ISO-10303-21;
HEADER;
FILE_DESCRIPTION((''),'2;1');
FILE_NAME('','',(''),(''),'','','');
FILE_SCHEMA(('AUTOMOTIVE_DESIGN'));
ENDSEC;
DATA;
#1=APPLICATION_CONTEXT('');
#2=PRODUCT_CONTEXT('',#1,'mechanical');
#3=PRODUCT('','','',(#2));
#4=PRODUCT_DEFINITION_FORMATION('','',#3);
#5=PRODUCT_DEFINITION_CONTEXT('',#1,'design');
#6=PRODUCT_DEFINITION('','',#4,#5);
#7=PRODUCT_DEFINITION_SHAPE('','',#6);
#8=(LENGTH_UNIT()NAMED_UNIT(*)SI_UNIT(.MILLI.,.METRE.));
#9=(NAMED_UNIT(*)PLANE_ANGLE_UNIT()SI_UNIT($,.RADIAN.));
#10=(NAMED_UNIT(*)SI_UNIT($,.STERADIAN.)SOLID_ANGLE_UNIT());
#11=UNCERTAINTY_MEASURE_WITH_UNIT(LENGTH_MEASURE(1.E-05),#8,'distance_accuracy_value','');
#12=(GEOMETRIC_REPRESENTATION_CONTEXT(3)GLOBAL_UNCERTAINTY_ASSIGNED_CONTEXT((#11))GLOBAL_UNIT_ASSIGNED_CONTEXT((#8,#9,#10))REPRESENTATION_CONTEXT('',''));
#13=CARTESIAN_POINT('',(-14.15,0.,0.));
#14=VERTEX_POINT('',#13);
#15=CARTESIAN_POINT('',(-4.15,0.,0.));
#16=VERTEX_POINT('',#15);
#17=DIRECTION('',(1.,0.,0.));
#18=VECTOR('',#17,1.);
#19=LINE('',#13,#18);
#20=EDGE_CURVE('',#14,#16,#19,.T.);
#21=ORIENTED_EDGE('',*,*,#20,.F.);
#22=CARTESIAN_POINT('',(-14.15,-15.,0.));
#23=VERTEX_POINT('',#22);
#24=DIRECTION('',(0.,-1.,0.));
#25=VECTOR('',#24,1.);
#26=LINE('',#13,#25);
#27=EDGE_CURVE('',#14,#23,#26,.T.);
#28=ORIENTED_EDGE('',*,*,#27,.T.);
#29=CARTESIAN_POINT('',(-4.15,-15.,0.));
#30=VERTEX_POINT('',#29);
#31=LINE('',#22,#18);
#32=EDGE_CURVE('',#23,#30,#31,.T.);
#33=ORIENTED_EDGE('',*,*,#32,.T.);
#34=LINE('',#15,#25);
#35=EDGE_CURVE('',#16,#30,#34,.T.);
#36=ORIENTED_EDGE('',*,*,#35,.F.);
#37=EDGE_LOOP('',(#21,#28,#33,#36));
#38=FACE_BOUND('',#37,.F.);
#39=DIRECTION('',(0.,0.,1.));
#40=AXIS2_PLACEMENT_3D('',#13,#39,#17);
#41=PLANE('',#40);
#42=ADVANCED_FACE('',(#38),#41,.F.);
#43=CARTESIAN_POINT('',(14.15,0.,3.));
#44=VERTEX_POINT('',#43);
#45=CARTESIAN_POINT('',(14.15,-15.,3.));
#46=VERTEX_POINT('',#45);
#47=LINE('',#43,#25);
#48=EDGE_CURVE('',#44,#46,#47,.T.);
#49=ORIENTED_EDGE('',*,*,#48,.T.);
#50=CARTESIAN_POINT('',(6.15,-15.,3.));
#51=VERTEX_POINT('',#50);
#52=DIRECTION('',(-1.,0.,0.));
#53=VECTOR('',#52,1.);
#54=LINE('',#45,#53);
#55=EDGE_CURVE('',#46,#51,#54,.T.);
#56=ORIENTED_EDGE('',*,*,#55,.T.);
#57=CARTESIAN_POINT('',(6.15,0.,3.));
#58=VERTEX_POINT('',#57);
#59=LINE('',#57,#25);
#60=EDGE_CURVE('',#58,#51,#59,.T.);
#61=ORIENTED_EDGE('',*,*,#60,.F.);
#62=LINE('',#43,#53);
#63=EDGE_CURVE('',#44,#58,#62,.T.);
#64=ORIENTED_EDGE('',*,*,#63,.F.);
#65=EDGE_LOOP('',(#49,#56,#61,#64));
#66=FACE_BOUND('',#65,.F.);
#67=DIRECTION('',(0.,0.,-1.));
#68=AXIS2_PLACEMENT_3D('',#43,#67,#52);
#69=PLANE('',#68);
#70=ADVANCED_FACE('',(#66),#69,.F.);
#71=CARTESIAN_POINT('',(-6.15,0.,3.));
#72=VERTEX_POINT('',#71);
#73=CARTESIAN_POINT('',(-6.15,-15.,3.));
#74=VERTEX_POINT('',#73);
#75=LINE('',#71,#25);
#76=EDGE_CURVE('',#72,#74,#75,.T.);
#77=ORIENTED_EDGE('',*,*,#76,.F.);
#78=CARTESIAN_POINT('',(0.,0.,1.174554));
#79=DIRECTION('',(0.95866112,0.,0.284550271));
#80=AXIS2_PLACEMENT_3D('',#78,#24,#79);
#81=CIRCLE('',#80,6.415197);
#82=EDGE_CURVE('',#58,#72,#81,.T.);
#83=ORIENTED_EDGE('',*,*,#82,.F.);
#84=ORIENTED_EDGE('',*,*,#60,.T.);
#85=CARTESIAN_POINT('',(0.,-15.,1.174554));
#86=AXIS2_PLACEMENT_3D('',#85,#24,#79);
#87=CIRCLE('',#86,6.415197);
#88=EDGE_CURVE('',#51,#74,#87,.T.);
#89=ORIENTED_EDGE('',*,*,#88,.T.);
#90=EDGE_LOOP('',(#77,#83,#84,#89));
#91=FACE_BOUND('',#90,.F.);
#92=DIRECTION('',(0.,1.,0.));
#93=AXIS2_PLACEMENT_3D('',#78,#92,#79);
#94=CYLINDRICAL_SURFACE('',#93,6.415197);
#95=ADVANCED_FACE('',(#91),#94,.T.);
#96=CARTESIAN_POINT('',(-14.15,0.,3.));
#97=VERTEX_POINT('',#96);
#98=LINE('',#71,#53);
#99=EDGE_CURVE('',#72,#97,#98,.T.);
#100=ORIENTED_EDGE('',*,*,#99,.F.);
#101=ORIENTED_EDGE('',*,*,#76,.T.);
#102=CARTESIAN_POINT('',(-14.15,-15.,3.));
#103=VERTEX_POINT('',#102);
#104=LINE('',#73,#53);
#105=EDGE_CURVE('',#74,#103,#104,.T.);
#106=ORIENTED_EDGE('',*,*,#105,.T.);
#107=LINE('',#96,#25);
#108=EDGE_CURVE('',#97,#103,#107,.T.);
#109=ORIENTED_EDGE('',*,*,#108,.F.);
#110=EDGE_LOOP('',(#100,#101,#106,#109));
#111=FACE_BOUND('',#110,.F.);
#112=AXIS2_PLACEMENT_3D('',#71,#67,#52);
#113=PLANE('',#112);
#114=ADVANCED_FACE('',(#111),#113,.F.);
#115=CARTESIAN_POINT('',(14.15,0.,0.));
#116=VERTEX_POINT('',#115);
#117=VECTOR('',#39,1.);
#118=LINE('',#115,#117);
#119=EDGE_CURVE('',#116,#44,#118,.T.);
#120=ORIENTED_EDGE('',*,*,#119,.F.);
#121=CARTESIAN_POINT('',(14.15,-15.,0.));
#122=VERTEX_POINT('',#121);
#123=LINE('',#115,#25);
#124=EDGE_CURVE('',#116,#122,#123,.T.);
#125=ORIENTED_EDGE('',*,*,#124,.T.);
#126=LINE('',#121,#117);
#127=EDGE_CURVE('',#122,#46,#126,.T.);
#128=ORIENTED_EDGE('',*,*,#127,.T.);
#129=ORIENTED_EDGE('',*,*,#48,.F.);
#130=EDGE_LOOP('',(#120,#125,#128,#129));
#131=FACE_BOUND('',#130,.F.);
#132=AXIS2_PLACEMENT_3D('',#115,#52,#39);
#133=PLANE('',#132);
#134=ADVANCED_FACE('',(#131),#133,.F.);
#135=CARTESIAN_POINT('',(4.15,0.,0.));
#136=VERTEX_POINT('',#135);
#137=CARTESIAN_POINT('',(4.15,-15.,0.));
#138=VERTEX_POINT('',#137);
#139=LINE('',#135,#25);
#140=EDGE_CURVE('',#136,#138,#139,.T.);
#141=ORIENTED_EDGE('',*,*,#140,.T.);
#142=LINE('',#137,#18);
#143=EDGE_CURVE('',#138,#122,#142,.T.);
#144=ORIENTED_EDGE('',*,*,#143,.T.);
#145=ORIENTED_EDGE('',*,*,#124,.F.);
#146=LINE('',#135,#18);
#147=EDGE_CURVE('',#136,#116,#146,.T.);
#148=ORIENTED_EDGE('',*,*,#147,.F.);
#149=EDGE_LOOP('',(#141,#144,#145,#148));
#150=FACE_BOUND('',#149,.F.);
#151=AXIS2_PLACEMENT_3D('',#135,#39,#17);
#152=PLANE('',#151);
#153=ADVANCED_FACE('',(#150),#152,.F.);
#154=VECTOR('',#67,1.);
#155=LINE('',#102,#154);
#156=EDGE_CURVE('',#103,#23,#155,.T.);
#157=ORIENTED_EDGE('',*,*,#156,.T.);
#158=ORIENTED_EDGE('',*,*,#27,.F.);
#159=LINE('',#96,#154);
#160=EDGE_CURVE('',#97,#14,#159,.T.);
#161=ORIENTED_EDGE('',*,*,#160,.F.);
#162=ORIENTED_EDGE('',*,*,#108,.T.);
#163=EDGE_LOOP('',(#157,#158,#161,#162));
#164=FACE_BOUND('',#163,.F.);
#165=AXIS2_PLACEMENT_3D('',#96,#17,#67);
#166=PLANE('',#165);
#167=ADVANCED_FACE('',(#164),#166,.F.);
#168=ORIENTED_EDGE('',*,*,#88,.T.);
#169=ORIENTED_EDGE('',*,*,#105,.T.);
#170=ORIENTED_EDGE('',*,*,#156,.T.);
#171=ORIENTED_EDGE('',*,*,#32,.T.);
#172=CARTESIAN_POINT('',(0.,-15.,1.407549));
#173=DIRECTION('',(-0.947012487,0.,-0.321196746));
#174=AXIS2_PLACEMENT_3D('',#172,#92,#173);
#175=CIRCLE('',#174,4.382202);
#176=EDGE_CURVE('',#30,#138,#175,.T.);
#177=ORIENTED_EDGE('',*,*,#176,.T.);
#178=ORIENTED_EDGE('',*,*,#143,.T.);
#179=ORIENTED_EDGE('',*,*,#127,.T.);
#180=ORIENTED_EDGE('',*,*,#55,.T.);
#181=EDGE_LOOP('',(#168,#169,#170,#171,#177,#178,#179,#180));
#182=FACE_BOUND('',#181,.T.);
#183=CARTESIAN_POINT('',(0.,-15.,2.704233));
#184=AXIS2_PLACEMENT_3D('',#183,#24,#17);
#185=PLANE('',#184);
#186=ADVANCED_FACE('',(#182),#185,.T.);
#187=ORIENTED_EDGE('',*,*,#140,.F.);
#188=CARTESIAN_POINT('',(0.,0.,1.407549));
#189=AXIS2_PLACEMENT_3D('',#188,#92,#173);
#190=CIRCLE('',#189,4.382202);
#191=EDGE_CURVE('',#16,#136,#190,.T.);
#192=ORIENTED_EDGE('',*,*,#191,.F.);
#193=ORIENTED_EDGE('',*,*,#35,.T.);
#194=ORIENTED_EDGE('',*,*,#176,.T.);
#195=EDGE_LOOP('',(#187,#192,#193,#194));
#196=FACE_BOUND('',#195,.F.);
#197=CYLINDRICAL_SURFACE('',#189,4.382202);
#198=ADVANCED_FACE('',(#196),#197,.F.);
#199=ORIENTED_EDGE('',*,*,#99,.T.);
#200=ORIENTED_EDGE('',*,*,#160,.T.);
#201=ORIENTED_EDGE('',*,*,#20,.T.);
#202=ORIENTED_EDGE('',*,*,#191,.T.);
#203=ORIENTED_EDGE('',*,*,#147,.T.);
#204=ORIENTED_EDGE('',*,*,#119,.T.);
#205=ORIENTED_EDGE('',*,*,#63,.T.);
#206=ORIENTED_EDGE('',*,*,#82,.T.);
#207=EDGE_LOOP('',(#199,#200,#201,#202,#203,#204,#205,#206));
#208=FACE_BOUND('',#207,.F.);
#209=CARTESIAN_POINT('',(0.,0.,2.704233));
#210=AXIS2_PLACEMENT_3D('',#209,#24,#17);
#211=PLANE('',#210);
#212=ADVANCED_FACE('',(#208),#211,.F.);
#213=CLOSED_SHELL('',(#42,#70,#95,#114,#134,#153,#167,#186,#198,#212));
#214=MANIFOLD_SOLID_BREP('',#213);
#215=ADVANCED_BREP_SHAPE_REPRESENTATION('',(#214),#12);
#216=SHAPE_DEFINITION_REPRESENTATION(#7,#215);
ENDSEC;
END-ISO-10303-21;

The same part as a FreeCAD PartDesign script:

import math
import FreeCAD as App
import Part
import Sketcher

V = App.Vector
Q = App.Units.Quantity

doc = App.newDocument("Part")
body = doc.addObject("PartDesign::Body", "Body")

sketch1 = body.newObject("Sketcher::SketchObject", "Sketch")
sketch1.AttachmentSupport = (doc.getObject("XZ_Plane"), [""])
sketch1.MapMode = "FlatFace"
sketch1.addGeometry([
    Part.LineSegment(V(-14.2, 3, 0), V(-14.2, 0, 0)),
    Part.LineSegment(V(-14.2, 0, 0), V(-4.2, 0, 0)),
    Part.ArcOfCircle(Part.Circle(V(0, 1.4, 0), V(0, 0, 1), 4.4), math.radians(-19), math.radians(199)),
    Part.LineSegment(V(4.2, 0, 0), V(14.2, 0, 0)),
    Part.LineSegment(V(14.2, 0, 0), V(14.2, 3, 0)),
    Part.LineSegment(V(14.2, 3, 0), V(6.2, 3, 0)),
    Part.ArcOfCircle(Part.Circle(V(0, 1.2, 0), V(0, 0, 1), 6.4), math.radians(17), math.radians(163)),
    Part.LineSegment(V(-6.2, 3, 0), V(-14.2, 3, 0)),
], False)
sketch1.addConstraint([
    Sketcher.Constraint("Coincident", 0, 2, 1, 1),
    Sketcher.Constraint("Coincident", 1, 2, 2, 2),
    Sketcher.Constraint("Coincident", 2, 1, 3, 1),
    Sketcher.Constraint("Coincident", 3, 2, 4, 1),
    Sketcher.Constraint("Coincident", 4, 2, 5, 1),
    Sketcher.Constraint("Coincident", 5, 2, 6, 1),
    Sketcher.Constraint("Coincident", 6, 2, 7, 1),
    Sketcher.Constraint("Coincident", 7, 2, 0, 1),
    Sketcher.Constraint("Vertical", 0),
    Sketcher.Constraint("Horizontal", 1),
    Sketcher.Constraint("Horizontal", 3),
    Sketcher.Constraint("Vertical", 4),
    Sketcher.Constraint("Horizontal", 5),
    Sketcher.Constraint("Horizontal", 7),
    Sketcher.Constraint("Symmetric", 1, 2, 2, 1, -1, 1),
    Sketcher.Constraint("Symmetric", 0, 2, 3, 2, -2),
    Sketcher.Constraint("Symmetric", 5, 2, 6, 2, -2),
    Sketcher.Constraint("DistanceX", 1, 1, 1, 2, Q("10 mm")),
    Sketcher.Constraint("DistanceX", 5, 2, 5, 1, Q("8 mm")),
    Sketcher.Constraint("DistanceY", 0, 2, 0, 1, Q("3 mm")),
    Sketcher.Constraint("Radius", 2, Q("4.382202 mm")),
    Sketcher.Constraint("DistanceX", 1, 2, 2, 1, Q("8.3 mm")),
    Sketcher.Constraint("Radius", 6, Q("6.415197 mm")),
])
pad1 = body.newObject("PartDesign::Pad", "Pad")
pad1.Profile = sketch1
pad1.Length = 15

doc.recompute()
